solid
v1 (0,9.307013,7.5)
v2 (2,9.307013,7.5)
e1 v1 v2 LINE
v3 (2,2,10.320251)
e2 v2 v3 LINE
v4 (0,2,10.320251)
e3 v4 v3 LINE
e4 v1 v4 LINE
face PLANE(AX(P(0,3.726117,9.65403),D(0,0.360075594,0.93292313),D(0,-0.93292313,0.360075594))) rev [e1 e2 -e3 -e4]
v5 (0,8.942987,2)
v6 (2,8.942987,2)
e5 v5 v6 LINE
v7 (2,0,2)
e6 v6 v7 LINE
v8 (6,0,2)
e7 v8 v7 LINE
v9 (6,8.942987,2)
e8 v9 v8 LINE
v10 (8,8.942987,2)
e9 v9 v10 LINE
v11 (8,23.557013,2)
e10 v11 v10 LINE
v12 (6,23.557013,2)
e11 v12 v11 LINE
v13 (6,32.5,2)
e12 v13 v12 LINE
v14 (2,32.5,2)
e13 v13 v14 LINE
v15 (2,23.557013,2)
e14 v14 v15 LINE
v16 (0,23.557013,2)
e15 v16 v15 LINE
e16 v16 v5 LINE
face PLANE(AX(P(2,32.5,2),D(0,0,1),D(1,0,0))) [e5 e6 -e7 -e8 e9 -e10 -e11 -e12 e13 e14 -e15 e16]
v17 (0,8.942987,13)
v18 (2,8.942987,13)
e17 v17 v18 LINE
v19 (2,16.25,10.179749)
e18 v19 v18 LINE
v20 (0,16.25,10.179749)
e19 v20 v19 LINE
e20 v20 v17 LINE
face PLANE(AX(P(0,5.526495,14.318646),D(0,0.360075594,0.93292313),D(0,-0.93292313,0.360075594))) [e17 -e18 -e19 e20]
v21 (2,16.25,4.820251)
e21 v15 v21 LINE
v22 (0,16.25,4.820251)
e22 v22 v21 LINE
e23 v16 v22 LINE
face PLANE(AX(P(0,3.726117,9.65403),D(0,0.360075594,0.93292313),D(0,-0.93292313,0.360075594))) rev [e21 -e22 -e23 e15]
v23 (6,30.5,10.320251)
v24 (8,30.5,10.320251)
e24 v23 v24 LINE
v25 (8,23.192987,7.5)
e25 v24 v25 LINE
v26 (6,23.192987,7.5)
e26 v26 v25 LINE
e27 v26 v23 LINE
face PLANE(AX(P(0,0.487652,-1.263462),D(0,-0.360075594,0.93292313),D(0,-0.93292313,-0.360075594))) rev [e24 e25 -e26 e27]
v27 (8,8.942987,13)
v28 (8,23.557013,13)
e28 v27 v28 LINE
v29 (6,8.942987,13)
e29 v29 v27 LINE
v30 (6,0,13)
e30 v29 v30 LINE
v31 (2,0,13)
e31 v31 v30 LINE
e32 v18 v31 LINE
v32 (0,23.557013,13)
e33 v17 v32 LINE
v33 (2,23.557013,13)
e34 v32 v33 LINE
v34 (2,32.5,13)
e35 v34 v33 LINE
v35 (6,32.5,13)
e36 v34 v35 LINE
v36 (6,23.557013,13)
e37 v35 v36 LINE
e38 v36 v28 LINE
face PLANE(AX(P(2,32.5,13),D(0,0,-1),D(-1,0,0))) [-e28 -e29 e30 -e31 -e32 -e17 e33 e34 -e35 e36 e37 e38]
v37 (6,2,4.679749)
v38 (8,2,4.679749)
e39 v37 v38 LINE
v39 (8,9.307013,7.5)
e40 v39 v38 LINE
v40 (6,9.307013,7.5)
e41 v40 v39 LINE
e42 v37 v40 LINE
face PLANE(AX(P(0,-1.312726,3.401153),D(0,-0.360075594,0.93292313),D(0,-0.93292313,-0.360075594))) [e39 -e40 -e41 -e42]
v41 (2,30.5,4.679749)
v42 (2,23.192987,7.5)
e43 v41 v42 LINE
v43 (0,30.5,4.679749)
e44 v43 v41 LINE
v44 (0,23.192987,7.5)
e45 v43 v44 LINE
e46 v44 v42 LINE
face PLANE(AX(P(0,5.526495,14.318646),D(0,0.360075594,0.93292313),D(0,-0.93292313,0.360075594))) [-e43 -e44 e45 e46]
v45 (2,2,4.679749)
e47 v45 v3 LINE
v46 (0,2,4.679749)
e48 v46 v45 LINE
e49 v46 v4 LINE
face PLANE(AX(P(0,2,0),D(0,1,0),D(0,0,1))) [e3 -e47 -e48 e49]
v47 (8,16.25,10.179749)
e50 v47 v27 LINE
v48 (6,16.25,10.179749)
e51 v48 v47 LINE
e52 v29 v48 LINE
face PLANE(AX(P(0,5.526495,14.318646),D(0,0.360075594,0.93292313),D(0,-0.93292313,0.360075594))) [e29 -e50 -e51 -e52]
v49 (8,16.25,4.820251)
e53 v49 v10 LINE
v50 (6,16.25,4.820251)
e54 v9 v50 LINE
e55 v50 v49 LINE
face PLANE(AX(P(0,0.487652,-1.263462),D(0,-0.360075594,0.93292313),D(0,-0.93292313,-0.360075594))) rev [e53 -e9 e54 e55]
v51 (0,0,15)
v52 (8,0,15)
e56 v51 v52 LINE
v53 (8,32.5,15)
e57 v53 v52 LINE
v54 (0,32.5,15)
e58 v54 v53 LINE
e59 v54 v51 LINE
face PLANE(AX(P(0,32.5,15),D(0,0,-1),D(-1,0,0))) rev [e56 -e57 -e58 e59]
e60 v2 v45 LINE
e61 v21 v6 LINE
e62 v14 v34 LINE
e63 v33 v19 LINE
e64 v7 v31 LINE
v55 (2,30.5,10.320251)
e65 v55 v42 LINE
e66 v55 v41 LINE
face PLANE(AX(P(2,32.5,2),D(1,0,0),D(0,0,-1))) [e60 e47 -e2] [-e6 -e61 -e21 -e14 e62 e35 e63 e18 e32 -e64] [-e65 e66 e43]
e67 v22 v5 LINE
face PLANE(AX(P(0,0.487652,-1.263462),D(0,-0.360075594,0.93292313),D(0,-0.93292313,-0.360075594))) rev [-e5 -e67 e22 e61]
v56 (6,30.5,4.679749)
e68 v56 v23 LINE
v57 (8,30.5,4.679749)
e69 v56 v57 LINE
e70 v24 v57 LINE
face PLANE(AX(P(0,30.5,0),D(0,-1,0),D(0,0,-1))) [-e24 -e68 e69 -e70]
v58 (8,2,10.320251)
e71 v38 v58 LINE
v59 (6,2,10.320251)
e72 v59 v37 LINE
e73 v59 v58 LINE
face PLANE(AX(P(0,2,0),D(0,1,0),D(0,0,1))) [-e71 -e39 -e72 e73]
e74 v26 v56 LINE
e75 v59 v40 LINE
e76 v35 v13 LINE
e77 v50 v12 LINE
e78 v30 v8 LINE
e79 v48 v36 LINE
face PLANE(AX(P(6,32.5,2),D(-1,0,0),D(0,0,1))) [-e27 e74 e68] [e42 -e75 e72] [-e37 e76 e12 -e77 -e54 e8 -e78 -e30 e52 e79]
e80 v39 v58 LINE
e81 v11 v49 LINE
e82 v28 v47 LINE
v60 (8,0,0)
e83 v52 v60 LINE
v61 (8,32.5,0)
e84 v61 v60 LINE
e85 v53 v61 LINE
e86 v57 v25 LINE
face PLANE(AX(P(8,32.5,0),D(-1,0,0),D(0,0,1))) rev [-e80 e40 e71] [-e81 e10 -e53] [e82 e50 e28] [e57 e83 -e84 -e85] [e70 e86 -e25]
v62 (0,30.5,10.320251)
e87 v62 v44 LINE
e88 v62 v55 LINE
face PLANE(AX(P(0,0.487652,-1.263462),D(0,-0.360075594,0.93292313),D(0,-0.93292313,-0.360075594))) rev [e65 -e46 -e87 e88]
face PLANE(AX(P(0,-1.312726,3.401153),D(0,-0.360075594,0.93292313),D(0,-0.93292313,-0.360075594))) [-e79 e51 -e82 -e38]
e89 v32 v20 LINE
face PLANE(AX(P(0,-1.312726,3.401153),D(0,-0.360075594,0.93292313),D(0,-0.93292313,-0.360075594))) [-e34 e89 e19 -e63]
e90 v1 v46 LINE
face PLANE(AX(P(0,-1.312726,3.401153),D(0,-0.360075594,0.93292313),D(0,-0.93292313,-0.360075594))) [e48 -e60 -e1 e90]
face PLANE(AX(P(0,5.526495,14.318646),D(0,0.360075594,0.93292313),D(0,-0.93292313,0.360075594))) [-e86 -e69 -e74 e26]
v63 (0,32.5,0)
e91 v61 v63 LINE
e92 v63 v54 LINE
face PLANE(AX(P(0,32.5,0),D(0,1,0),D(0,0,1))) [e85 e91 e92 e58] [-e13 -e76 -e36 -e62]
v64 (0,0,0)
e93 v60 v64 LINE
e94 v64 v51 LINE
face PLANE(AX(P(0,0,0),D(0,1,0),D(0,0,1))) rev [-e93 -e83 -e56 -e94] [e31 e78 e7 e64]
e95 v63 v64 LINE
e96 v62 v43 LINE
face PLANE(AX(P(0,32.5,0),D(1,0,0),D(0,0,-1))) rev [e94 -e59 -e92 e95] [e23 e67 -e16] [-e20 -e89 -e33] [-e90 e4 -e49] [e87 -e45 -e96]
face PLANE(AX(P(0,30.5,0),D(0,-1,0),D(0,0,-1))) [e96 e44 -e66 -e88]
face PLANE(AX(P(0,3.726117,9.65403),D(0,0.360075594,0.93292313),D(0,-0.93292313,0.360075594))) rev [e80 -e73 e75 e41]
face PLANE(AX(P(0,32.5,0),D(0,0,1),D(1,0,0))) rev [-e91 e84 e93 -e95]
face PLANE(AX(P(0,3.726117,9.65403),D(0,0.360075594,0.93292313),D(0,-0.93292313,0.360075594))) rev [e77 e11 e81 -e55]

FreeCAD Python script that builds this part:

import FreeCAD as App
import Part
import Sketcher
from FreeCAD import Vector


def add_polygon(sketch, points):
    """Adds a closed chain of lines whose ends are joined by coincident constraints."""
    first, n = sketch.GeometryCount, len(points)
    for a, b in zip(points, points[1:] + points[:1]):
        sketch.addGeometry(Part.LineSegment(App.Vector(*a, 0), App.Vector(*b, 0)), False)
    for i in range(n):
        sketch.addConstraint(Sketcher.Constraint("Coincident", first + i, 2, first + (i + 1) % n, 1))

doc = App.newDocument("Part")
body = doc.addObject("PartDesign::Body", "Body")

# Sketch on XZ plane
sketch1 = body.newObject("Sketcher::SketchObject", "Sketch")
sketch1.AttachmentSupport = (doc.getObject("XZ_Plane"), [""])
sketch1.MapMode = "FlatFace"
add_polygon(sketch1, [(0, 0), (0, 15), (8, 15), (8, 0)])  # lines 0-3
add_polygon(sketch1, [(6, 13), (2, 13), (2, 2), (6, 2)])  # lines 4-7
sketch1.addConstraint(Sketcher.Constraint("Vertical", 0))
sketch1.addConstraint(Sketcher.Constraint("Horizontal", 1))
sketch1.addConstraint(Sketcher.Constraint("Vertical", 2))
sketch1.addConstraint(Sketcher.Constraint("Horizontal", 3))
sketch1.addConstraint(Sketcher.Constraint("Horizontal", 4))
sketch1.addConstraint(Sketcher.Constraint("Vertical", 5))
sketch1.addConstraint(Sketcher.Constraint("Horizontal", 6))
sketch1.addConstraint(Sketcher.Constraint("Vertical", 7))
sketch1.addConstraint(Sketcher.Constraint("Coincident", 3, 2, -1, 1))
sketch1.addConstraint(Sketcher.Constraint("DistanceX", 1, 1, 1, 2, 8.0))
sketch1.addConstraint(Sketcher.Constraint("DistanceX", 4, 2, 4, 1, 4.0))
sketch1.addConstraint(Sketcher.Constraint("DistanceY", 0, 1, 0, 2, 15.0))
sketch1.addConstraint(Sketcher.Constraint("DistanceY", 5, 2, 5, 1, 11.0))
sketch1.addConstraint(Sketcher.Constraint("DistanceX", -1, 1, 4, 2, 2.0))
sketch1.addConstraint(Sketcher.Constraint("DistanceY", -1, 1, 4, 2, 13.0))
pad1 = body.newObject("PartDesign::Pad", "Pad")
pad1.Profile = sketch1
pad1.Length = 32.5
pad1.Reversed = True

# Sketch on YZ plane
sketch2 = body.newObject("Sketcher::SketchObject", "Sketch001")
sketch2.AttachmentSupport = (doc.getObject("YZ_Plane"), [""])
sketch2.MapMode = "FlatFace"
sketch2.AttachmentOffset = App.Placement(Vector(0, 0, 8), App.Rotation())
add_polygon(sketch2, [(30, 5), (30, 10), (23, 8)])  # lines 0-2
add_polygon(sketch2, [(16, 10), (24, 13), (9, 13)])  # lines 3-5
add_polygon(sketch2, [(24, 2), (16, 5), (9, 2)])  # lines 6-8
add_polygon(sketch2, [(2, 5), (9, 8), (2, 10)])  # lines 9-11
sketch2.addConstraint(Sketcher.Constraint("Vertical", 0))
sketch2.addConstraint(Sketcher.Constraint("Horizontal", 4))
sketch2.addConstraint(Sketcher.Constraint("Horizontal", 8))
sketch2.addConstraint(Sketcher.Constraint("Vertical", 11))
sketch2.addConstraint(Sketcher.Constraint("Parallel", 1, 3))
sketch2.addConstraint(Sketcher.Constraint("Parallel", 2, 5))
sketch2.addConstraint(Sketcher.Constraint("Parallel", 5, 6))
sketch2.addConstraint(Sketcher.Constraint("Parallel", 3, 7))
sketch2.addConstraint(Sketcher.Constraint("Parallel", 7, 9))
sketch2.addConstraint(Sketcher.Constraint("Parallel", 6, 10))
sketch2.addConstraint(Sketcher.Constraint("Horizontal", 1, 2, 9, 2))
sketch2.addConstraint(Sketcher.Constraint("Horizontal", 0, 2, 10, 2))
sketch2.addConstraint(Sketcher.Constraint("Horizontal", 2, 2, 11, 2))
sketch2.addConstraint(Sketcher.Constraint("Vertical", 5, 2, 6, 2))
sketch2.addConstraint(Sketcher.Constraint("Vertical", 4, 2, 7, 2))
sketch2.addConstraint(Sketcher.Constraint("Equal", 2, 3))
sketch2.addConstraint(Sketcher.Constraint("DistanceY", -1, 1, 3, 2, 13.0))
sketch2.addConstraint(Sketcher.Constraint("DistanceY", -1, 1, 7, 2, 2.0))
sketch2.addConstraint(Sketcher.Constraint("DistanceX", -1, 1, 10, 2, 2.0))
sketch2.addConstraint(Sketcher.Constraint("DistanceX", -1, 1, 0, 2, 30.5))
sketch2.addConstraint(Sketcher.Constraint("DistanceY", -1, 1, 1, 2, 7.5))
sketch2.addConstraint(Sketcher.Constraint("DistanceX", -1, 1, 5, 2, 16.25))
sketch2.addConstraint(Sketcher.Constraint("DistanceY", 0, 1, 0, 2, 5.640502))
sketch2.addConstraint(Sketcher.Constraint("DistanceX", 4, 2, 4, 1, 14.614027))
pocket1 = body.newObject("PartDesign::Pocket", "Pocket")
pocket1.Profile = sketch2
pocket1.Type = "ThroughAll"

doc.recompute()
